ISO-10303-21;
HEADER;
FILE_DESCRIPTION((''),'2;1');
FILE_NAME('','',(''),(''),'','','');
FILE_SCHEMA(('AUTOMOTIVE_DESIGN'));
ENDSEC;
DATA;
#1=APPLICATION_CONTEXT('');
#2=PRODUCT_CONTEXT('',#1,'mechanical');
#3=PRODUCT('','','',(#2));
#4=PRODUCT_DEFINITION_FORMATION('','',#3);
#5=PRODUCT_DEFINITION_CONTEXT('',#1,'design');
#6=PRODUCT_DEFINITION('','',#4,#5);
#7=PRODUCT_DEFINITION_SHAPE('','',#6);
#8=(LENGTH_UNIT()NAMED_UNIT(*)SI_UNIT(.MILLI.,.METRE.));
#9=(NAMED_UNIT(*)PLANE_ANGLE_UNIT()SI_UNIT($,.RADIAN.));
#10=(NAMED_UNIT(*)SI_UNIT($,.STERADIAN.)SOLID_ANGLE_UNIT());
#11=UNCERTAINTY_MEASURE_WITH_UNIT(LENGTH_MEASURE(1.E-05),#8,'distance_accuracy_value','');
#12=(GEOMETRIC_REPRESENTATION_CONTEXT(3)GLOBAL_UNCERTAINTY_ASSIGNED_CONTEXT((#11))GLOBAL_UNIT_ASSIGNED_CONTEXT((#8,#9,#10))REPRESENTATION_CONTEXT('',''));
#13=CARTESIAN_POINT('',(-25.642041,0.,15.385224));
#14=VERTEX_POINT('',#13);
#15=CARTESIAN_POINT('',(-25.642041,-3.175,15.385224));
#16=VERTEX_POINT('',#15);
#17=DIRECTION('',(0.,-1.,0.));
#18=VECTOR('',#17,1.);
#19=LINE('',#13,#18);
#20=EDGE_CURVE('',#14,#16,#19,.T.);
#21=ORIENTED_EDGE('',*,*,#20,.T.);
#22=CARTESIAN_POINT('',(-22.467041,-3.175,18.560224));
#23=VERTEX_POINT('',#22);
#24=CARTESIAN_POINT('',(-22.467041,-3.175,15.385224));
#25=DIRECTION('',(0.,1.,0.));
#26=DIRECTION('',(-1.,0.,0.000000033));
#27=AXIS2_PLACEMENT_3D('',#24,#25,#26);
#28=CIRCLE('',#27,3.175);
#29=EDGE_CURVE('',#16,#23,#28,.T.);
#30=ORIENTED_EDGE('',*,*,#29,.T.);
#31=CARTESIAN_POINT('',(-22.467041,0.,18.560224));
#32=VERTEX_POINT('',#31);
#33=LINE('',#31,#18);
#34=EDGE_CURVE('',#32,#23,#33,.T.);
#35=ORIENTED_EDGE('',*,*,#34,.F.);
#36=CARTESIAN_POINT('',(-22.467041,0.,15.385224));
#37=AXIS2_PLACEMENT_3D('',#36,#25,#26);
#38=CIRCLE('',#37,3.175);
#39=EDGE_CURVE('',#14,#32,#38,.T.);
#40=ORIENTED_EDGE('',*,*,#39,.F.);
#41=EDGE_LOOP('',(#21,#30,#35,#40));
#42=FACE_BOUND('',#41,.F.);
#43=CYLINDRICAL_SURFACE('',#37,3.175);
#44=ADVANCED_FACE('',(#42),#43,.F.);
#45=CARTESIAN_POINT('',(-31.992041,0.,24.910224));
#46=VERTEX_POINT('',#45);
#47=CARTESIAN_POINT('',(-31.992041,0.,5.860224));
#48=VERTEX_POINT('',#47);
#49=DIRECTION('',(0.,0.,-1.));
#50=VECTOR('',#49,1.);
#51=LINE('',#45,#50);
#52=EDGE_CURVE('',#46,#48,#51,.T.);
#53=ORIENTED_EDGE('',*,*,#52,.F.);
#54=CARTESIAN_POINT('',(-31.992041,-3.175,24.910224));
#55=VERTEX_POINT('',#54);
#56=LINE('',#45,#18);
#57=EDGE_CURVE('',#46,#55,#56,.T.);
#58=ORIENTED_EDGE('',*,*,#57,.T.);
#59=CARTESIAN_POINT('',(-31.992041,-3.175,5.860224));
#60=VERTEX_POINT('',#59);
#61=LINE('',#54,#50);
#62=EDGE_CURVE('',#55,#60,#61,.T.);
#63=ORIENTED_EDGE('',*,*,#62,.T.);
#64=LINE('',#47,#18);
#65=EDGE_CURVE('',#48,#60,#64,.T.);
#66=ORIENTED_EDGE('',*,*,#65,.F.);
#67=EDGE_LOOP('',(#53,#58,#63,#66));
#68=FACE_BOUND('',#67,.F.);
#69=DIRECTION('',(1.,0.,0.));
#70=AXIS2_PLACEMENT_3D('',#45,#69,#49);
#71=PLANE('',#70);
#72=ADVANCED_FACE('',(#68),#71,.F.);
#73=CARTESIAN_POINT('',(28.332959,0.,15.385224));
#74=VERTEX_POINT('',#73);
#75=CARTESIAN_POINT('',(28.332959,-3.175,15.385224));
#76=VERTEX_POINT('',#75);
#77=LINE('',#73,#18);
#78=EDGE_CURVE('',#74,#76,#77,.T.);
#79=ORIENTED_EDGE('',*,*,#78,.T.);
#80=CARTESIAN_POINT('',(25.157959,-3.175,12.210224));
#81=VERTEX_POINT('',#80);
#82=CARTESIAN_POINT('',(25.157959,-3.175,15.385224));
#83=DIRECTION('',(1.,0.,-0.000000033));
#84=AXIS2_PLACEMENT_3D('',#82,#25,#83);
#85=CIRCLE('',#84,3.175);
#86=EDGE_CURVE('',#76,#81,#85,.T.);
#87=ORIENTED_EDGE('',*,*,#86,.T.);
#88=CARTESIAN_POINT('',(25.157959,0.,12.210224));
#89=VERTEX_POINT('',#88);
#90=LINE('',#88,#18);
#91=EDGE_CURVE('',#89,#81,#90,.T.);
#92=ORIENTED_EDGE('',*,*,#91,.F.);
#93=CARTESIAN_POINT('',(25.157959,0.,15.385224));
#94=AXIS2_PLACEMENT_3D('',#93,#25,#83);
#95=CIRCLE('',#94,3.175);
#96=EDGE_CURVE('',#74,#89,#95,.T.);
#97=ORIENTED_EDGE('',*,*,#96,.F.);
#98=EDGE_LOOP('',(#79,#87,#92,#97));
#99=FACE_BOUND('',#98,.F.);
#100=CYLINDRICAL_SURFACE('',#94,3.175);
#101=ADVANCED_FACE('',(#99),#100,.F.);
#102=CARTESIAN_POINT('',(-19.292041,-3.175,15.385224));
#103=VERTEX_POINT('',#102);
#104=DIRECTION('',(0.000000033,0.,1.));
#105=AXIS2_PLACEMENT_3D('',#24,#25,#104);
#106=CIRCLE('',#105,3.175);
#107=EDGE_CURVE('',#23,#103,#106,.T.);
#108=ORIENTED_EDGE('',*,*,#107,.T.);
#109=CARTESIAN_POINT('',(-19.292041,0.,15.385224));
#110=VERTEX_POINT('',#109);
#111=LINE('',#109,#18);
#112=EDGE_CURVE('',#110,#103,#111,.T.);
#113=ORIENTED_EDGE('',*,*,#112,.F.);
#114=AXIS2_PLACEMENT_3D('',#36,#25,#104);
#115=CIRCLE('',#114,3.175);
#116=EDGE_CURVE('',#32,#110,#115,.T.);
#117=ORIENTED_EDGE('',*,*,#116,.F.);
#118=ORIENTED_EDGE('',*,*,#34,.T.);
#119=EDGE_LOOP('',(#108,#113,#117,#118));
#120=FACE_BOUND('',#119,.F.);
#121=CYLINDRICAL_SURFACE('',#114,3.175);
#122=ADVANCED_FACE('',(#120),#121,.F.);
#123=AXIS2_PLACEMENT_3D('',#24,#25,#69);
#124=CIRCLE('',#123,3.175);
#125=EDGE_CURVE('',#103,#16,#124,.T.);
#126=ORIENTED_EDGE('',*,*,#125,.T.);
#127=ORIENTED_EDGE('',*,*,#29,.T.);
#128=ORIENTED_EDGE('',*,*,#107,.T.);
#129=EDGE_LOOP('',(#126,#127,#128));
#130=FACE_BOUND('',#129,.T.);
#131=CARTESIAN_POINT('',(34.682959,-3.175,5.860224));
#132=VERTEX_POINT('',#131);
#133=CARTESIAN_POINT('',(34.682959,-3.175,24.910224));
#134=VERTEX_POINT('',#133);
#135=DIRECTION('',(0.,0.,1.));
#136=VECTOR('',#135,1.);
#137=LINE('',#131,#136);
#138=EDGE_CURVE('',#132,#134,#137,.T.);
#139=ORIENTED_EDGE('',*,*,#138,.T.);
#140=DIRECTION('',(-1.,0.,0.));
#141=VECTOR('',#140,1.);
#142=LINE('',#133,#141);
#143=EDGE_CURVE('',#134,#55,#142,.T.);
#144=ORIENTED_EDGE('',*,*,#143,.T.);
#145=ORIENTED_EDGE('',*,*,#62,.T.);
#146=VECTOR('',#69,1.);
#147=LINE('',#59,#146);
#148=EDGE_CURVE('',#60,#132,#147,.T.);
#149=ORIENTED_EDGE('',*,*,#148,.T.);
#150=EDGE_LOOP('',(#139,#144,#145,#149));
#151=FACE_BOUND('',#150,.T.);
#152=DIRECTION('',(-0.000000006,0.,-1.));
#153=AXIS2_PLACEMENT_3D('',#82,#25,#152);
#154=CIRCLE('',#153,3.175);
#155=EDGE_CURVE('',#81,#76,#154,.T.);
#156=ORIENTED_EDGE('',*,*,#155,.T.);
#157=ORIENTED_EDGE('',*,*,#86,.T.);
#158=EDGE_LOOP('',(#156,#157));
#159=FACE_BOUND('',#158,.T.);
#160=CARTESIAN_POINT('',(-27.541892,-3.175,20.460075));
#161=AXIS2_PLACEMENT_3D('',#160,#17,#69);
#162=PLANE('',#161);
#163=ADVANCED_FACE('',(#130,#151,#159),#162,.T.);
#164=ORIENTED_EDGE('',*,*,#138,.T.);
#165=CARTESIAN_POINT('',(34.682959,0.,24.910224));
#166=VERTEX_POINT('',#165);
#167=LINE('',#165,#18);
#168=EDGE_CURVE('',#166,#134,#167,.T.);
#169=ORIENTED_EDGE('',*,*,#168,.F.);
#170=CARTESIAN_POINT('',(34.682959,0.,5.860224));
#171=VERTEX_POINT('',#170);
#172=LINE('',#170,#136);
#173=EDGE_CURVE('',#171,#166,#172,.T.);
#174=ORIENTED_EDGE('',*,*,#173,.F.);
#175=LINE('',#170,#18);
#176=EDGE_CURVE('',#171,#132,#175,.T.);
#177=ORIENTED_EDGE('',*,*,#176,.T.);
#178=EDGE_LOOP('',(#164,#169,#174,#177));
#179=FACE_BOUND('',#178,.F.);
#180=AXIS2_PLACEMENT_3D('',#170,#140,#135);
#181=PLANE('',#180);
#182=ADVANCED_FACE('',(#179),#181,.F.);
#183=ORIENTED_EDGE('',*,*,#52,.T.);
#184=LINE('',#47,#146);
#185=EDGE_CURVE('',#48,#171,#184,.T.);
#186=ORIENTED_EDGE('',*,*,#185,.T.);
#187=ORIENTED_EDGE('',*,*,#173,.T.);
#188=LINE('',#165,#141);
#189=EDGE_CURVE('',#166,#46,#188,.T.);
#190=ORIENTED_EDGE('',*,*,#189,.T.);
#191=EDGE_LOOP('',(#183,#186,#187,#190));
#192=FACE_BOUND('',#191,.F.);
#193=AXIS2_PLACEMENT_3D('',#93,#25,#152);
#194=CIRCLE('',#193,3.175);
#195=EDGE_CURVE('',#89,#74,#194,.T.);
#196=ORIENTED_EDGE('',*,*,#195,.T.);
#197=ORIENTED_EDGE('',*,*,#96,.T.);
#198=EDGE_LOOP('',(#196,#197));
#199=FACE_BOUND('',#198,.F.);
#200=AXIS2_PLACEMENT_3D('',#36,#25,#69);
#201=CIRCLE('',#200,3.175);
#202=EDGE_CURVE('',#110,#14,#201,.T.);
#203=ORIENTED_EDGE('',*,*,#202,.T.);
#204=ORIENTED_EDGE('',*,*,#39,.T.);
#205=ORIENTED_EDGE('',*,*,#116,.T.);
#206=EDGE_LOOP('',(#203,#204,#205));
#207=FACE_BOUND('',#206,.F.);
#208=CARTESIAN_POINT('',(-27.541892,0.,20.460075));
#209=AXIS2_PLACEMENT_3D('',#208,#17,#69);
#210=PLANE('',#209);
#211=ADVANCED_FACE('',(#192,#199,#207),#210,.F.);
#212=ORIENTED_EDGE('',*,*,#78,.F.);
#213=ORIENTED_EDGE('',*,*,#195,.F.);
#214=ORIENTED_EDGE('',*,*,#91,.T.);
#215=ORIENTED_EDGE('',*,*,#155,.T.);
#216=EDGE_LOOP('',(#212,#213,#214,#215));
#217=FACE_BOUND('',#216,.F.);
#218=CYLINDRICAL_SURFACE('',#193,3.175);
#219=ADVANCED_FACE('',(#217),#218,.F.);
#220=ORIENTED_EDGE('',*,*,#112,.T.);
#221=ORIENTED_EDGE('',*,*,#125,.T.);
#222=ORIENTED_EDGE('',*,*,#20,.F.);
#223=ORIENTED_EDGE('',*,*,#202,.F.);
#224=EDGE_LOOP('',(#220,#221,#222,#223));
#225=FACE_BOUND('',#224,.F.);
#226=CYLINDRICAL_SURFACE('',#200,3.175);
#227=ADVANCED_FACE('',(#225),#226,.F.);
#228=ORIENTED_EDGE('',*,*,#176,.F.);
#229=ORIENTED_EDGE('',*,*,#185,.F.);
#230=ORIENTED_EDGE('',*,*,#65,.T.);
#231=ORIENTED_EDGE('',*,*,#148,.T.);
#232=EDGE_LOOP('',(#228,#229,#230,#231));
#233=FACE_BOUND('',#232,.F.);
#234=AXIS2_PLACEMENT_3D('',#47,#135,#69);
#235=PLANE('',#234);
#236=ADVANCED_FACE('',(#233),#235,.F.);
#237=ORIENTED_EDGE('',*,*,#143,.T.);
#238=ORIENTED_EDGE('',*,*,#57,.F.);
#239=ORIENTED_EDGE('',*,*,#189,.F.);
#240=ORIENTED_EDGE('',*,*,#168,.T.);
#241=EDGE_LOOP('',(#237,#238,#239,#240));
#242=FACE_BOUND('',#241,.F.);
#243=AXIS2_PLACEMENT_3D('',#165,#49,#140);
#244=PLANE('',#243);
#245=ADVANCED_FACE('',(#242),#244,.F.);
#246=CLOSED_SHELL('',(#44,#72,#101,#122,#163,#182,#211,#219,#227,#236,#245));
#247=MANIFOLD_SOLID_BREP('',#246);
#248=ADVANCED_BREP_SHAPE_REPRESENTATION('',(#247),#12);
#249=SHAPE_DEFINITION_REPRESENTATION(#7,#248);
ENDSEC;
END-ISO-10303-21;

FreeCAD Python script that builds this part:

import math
import FreeCAD as App
import Part
import Sketcher
Q = App.Units.Quantity


def add_polygon(sketch, points):
    """Adds a closed chain of lines whose ends are joined by coincident constraints."""
    first, n = sketch.GeometryCount, len(points)
    for a, b in zip(points, points[1:] + points[:1]):
        sketch.addGeometry(Part.LineSegment(App.Vector(*a, 0), App.Vector(*b, 0)), False)
    for i in range(n):
        sketch.addConstraint(Sketcher.Constraint("Coincident", first + i, 2, first + (i + 1) % n, 1))

doc = App.newDocument("Part")
body = doc.addObject("PartDesign::Body", "Body")

# Sketch on XZ plane
sketch1 = body.newObject("Sketcher::SketchObject", "Sketch")
sketch1.AttachmentSupport = (doc.getObject("XZ_Plane"), [""])
sketch1.MapMode = "FlatFace"
add_polygon(sketch1, [(-31.992041, 24.910224), (-31.992041, 5.860224), (34.682959, 5.860224), (34.682959, 24.910224)])  # lines 0-3
sketch1.addGeometry(Part.ArcOfCircle(Part.Circle(App.Vector(25.157959, 15.385224, 0), App.Vector(0, 0, 1), 3.175), math.radians(0), math.radians(270)), False)  # 4
sketch1.addGeometry(Part.ArcOfCircle(Part.Circle(App.Vector(25.157959, 15.385224, 0), App.Vector(0, 0, 1), 3.175), math.radians(-89.999998), math.radians(-0.000002)), False)  # 5
sketch1.addGeometry(Part.ArcOfCircle(Part.Circle(App.Vector(-22.467041, 15.385224, 0), App.Vector(0, 0, 1), 3.175), math.radians(90.000002), math.radians(179.999998)), False)  # 6
sketch1.addGeometry(Part.ArcOfCircle(Part.Circle(App.Vector(-22.467041, 15.385224, 0), App.Vector(0, 0, 1), 3.175), math.radians(0.000002), math.radians(89.999998)), False)  # 7
sketch1.addGeometry(Part.ArcOfCircle(Part.Circle(App.Vector(-22.467041, 15.385224, 0), App.Vector(0, 0, 1), 3.175), math.radians(180), math.radians(360)), False)  # 8
sketch1.addConstraint(Sketcher.Constraint("Tangent", 4, 1, 5, 2))
sketch1.addConstraint(Sketcher.Constraint("Coincident", 5, 1, 4, 2))
sketch1.addConstraint(Sketcher.Constraint("Tangent", 6, 1, 7, 2))
sketch1.addConstraint(Sketcher.Constraint("Tangent", 7, 1, 8, 2))
sketch1.addConstraint(Sketcher.Constraint("Tangent", 8, 1, 6, 2))
sketch1.addConstraint(Sketcher.Constraint("Vertical", 0))
sketch1.addConstraint(Sketcher.Constraint("Horizontal", 1))
sketch1.addConstraint(Sketcher.Constraint("Vertical", 2))
sketch1.addConstraint(Sketcher.Constraint("Horizontal", 3))
sketch1.addConstraint(Sketcher.Constraint("Equal", 5, 6))
sketch1.addConstraint(Sketcher.Constraint("Horizontal", 5, 3, 6, 3))
sketch1.addConstraint(Sketcher.Constraint("Horizontal", 8, 3, 4, 1))
sketch1.addConstraint(Sketcher.Constraint("Horizontal", 4, 1, 7, 1))
sketch1.addConstraint(Sketcher.Constraint("Horizontal", 7, 1, 8, 1))
sketch1.addConstraint(Sketcher.Constraint("Vertical", 4, 3, 5, 1))
sketch1.addConstraint(Sketcher.Constraint("Vertical", 8, 3, 6, 1))
sketch1.addConstraint(Sketcher.Constraint("Radius", 4, Q("0.125 in")))
sketch1.addConstraint(Sketcher.Constraint("DistanceX", 6, 3, 4, 1, Q("2 in")))
sketch1.addConstraint(Sketcher.Constraint("DistanceY", 0, 2, 0, 1, Q("0.75 in")))
sketch1.addConstraint(Sketcher.Constraint("DistanceY", 5, 1, 2, 2, Q("0.5 in")))
sketch1.addConstraint(Sketcher.Constraint("DistanceX", 0, 2, 7, 1, Q("0.5 in")))
sketch1.addConstraint(Sketcher.Constraint("DistanceX", 1, 1, 1, 2, Q("2.625 in")))
sketch1.addConstraint(Sketcher.Constraint("DistanceX", -1, 1, 4, 3, Q("25.157959 mm")))
sketch1.addConstraint(Sketcher.Constraint("DistanceY", -1, 1, 4, 3, Q("15.385224 mm")))
pad1 = body.newObject("PartDesign::Pad", "Pad")
pad1.Profile = sketch1
pad1.Length = Q("0.125 in")

doc.recompute()
